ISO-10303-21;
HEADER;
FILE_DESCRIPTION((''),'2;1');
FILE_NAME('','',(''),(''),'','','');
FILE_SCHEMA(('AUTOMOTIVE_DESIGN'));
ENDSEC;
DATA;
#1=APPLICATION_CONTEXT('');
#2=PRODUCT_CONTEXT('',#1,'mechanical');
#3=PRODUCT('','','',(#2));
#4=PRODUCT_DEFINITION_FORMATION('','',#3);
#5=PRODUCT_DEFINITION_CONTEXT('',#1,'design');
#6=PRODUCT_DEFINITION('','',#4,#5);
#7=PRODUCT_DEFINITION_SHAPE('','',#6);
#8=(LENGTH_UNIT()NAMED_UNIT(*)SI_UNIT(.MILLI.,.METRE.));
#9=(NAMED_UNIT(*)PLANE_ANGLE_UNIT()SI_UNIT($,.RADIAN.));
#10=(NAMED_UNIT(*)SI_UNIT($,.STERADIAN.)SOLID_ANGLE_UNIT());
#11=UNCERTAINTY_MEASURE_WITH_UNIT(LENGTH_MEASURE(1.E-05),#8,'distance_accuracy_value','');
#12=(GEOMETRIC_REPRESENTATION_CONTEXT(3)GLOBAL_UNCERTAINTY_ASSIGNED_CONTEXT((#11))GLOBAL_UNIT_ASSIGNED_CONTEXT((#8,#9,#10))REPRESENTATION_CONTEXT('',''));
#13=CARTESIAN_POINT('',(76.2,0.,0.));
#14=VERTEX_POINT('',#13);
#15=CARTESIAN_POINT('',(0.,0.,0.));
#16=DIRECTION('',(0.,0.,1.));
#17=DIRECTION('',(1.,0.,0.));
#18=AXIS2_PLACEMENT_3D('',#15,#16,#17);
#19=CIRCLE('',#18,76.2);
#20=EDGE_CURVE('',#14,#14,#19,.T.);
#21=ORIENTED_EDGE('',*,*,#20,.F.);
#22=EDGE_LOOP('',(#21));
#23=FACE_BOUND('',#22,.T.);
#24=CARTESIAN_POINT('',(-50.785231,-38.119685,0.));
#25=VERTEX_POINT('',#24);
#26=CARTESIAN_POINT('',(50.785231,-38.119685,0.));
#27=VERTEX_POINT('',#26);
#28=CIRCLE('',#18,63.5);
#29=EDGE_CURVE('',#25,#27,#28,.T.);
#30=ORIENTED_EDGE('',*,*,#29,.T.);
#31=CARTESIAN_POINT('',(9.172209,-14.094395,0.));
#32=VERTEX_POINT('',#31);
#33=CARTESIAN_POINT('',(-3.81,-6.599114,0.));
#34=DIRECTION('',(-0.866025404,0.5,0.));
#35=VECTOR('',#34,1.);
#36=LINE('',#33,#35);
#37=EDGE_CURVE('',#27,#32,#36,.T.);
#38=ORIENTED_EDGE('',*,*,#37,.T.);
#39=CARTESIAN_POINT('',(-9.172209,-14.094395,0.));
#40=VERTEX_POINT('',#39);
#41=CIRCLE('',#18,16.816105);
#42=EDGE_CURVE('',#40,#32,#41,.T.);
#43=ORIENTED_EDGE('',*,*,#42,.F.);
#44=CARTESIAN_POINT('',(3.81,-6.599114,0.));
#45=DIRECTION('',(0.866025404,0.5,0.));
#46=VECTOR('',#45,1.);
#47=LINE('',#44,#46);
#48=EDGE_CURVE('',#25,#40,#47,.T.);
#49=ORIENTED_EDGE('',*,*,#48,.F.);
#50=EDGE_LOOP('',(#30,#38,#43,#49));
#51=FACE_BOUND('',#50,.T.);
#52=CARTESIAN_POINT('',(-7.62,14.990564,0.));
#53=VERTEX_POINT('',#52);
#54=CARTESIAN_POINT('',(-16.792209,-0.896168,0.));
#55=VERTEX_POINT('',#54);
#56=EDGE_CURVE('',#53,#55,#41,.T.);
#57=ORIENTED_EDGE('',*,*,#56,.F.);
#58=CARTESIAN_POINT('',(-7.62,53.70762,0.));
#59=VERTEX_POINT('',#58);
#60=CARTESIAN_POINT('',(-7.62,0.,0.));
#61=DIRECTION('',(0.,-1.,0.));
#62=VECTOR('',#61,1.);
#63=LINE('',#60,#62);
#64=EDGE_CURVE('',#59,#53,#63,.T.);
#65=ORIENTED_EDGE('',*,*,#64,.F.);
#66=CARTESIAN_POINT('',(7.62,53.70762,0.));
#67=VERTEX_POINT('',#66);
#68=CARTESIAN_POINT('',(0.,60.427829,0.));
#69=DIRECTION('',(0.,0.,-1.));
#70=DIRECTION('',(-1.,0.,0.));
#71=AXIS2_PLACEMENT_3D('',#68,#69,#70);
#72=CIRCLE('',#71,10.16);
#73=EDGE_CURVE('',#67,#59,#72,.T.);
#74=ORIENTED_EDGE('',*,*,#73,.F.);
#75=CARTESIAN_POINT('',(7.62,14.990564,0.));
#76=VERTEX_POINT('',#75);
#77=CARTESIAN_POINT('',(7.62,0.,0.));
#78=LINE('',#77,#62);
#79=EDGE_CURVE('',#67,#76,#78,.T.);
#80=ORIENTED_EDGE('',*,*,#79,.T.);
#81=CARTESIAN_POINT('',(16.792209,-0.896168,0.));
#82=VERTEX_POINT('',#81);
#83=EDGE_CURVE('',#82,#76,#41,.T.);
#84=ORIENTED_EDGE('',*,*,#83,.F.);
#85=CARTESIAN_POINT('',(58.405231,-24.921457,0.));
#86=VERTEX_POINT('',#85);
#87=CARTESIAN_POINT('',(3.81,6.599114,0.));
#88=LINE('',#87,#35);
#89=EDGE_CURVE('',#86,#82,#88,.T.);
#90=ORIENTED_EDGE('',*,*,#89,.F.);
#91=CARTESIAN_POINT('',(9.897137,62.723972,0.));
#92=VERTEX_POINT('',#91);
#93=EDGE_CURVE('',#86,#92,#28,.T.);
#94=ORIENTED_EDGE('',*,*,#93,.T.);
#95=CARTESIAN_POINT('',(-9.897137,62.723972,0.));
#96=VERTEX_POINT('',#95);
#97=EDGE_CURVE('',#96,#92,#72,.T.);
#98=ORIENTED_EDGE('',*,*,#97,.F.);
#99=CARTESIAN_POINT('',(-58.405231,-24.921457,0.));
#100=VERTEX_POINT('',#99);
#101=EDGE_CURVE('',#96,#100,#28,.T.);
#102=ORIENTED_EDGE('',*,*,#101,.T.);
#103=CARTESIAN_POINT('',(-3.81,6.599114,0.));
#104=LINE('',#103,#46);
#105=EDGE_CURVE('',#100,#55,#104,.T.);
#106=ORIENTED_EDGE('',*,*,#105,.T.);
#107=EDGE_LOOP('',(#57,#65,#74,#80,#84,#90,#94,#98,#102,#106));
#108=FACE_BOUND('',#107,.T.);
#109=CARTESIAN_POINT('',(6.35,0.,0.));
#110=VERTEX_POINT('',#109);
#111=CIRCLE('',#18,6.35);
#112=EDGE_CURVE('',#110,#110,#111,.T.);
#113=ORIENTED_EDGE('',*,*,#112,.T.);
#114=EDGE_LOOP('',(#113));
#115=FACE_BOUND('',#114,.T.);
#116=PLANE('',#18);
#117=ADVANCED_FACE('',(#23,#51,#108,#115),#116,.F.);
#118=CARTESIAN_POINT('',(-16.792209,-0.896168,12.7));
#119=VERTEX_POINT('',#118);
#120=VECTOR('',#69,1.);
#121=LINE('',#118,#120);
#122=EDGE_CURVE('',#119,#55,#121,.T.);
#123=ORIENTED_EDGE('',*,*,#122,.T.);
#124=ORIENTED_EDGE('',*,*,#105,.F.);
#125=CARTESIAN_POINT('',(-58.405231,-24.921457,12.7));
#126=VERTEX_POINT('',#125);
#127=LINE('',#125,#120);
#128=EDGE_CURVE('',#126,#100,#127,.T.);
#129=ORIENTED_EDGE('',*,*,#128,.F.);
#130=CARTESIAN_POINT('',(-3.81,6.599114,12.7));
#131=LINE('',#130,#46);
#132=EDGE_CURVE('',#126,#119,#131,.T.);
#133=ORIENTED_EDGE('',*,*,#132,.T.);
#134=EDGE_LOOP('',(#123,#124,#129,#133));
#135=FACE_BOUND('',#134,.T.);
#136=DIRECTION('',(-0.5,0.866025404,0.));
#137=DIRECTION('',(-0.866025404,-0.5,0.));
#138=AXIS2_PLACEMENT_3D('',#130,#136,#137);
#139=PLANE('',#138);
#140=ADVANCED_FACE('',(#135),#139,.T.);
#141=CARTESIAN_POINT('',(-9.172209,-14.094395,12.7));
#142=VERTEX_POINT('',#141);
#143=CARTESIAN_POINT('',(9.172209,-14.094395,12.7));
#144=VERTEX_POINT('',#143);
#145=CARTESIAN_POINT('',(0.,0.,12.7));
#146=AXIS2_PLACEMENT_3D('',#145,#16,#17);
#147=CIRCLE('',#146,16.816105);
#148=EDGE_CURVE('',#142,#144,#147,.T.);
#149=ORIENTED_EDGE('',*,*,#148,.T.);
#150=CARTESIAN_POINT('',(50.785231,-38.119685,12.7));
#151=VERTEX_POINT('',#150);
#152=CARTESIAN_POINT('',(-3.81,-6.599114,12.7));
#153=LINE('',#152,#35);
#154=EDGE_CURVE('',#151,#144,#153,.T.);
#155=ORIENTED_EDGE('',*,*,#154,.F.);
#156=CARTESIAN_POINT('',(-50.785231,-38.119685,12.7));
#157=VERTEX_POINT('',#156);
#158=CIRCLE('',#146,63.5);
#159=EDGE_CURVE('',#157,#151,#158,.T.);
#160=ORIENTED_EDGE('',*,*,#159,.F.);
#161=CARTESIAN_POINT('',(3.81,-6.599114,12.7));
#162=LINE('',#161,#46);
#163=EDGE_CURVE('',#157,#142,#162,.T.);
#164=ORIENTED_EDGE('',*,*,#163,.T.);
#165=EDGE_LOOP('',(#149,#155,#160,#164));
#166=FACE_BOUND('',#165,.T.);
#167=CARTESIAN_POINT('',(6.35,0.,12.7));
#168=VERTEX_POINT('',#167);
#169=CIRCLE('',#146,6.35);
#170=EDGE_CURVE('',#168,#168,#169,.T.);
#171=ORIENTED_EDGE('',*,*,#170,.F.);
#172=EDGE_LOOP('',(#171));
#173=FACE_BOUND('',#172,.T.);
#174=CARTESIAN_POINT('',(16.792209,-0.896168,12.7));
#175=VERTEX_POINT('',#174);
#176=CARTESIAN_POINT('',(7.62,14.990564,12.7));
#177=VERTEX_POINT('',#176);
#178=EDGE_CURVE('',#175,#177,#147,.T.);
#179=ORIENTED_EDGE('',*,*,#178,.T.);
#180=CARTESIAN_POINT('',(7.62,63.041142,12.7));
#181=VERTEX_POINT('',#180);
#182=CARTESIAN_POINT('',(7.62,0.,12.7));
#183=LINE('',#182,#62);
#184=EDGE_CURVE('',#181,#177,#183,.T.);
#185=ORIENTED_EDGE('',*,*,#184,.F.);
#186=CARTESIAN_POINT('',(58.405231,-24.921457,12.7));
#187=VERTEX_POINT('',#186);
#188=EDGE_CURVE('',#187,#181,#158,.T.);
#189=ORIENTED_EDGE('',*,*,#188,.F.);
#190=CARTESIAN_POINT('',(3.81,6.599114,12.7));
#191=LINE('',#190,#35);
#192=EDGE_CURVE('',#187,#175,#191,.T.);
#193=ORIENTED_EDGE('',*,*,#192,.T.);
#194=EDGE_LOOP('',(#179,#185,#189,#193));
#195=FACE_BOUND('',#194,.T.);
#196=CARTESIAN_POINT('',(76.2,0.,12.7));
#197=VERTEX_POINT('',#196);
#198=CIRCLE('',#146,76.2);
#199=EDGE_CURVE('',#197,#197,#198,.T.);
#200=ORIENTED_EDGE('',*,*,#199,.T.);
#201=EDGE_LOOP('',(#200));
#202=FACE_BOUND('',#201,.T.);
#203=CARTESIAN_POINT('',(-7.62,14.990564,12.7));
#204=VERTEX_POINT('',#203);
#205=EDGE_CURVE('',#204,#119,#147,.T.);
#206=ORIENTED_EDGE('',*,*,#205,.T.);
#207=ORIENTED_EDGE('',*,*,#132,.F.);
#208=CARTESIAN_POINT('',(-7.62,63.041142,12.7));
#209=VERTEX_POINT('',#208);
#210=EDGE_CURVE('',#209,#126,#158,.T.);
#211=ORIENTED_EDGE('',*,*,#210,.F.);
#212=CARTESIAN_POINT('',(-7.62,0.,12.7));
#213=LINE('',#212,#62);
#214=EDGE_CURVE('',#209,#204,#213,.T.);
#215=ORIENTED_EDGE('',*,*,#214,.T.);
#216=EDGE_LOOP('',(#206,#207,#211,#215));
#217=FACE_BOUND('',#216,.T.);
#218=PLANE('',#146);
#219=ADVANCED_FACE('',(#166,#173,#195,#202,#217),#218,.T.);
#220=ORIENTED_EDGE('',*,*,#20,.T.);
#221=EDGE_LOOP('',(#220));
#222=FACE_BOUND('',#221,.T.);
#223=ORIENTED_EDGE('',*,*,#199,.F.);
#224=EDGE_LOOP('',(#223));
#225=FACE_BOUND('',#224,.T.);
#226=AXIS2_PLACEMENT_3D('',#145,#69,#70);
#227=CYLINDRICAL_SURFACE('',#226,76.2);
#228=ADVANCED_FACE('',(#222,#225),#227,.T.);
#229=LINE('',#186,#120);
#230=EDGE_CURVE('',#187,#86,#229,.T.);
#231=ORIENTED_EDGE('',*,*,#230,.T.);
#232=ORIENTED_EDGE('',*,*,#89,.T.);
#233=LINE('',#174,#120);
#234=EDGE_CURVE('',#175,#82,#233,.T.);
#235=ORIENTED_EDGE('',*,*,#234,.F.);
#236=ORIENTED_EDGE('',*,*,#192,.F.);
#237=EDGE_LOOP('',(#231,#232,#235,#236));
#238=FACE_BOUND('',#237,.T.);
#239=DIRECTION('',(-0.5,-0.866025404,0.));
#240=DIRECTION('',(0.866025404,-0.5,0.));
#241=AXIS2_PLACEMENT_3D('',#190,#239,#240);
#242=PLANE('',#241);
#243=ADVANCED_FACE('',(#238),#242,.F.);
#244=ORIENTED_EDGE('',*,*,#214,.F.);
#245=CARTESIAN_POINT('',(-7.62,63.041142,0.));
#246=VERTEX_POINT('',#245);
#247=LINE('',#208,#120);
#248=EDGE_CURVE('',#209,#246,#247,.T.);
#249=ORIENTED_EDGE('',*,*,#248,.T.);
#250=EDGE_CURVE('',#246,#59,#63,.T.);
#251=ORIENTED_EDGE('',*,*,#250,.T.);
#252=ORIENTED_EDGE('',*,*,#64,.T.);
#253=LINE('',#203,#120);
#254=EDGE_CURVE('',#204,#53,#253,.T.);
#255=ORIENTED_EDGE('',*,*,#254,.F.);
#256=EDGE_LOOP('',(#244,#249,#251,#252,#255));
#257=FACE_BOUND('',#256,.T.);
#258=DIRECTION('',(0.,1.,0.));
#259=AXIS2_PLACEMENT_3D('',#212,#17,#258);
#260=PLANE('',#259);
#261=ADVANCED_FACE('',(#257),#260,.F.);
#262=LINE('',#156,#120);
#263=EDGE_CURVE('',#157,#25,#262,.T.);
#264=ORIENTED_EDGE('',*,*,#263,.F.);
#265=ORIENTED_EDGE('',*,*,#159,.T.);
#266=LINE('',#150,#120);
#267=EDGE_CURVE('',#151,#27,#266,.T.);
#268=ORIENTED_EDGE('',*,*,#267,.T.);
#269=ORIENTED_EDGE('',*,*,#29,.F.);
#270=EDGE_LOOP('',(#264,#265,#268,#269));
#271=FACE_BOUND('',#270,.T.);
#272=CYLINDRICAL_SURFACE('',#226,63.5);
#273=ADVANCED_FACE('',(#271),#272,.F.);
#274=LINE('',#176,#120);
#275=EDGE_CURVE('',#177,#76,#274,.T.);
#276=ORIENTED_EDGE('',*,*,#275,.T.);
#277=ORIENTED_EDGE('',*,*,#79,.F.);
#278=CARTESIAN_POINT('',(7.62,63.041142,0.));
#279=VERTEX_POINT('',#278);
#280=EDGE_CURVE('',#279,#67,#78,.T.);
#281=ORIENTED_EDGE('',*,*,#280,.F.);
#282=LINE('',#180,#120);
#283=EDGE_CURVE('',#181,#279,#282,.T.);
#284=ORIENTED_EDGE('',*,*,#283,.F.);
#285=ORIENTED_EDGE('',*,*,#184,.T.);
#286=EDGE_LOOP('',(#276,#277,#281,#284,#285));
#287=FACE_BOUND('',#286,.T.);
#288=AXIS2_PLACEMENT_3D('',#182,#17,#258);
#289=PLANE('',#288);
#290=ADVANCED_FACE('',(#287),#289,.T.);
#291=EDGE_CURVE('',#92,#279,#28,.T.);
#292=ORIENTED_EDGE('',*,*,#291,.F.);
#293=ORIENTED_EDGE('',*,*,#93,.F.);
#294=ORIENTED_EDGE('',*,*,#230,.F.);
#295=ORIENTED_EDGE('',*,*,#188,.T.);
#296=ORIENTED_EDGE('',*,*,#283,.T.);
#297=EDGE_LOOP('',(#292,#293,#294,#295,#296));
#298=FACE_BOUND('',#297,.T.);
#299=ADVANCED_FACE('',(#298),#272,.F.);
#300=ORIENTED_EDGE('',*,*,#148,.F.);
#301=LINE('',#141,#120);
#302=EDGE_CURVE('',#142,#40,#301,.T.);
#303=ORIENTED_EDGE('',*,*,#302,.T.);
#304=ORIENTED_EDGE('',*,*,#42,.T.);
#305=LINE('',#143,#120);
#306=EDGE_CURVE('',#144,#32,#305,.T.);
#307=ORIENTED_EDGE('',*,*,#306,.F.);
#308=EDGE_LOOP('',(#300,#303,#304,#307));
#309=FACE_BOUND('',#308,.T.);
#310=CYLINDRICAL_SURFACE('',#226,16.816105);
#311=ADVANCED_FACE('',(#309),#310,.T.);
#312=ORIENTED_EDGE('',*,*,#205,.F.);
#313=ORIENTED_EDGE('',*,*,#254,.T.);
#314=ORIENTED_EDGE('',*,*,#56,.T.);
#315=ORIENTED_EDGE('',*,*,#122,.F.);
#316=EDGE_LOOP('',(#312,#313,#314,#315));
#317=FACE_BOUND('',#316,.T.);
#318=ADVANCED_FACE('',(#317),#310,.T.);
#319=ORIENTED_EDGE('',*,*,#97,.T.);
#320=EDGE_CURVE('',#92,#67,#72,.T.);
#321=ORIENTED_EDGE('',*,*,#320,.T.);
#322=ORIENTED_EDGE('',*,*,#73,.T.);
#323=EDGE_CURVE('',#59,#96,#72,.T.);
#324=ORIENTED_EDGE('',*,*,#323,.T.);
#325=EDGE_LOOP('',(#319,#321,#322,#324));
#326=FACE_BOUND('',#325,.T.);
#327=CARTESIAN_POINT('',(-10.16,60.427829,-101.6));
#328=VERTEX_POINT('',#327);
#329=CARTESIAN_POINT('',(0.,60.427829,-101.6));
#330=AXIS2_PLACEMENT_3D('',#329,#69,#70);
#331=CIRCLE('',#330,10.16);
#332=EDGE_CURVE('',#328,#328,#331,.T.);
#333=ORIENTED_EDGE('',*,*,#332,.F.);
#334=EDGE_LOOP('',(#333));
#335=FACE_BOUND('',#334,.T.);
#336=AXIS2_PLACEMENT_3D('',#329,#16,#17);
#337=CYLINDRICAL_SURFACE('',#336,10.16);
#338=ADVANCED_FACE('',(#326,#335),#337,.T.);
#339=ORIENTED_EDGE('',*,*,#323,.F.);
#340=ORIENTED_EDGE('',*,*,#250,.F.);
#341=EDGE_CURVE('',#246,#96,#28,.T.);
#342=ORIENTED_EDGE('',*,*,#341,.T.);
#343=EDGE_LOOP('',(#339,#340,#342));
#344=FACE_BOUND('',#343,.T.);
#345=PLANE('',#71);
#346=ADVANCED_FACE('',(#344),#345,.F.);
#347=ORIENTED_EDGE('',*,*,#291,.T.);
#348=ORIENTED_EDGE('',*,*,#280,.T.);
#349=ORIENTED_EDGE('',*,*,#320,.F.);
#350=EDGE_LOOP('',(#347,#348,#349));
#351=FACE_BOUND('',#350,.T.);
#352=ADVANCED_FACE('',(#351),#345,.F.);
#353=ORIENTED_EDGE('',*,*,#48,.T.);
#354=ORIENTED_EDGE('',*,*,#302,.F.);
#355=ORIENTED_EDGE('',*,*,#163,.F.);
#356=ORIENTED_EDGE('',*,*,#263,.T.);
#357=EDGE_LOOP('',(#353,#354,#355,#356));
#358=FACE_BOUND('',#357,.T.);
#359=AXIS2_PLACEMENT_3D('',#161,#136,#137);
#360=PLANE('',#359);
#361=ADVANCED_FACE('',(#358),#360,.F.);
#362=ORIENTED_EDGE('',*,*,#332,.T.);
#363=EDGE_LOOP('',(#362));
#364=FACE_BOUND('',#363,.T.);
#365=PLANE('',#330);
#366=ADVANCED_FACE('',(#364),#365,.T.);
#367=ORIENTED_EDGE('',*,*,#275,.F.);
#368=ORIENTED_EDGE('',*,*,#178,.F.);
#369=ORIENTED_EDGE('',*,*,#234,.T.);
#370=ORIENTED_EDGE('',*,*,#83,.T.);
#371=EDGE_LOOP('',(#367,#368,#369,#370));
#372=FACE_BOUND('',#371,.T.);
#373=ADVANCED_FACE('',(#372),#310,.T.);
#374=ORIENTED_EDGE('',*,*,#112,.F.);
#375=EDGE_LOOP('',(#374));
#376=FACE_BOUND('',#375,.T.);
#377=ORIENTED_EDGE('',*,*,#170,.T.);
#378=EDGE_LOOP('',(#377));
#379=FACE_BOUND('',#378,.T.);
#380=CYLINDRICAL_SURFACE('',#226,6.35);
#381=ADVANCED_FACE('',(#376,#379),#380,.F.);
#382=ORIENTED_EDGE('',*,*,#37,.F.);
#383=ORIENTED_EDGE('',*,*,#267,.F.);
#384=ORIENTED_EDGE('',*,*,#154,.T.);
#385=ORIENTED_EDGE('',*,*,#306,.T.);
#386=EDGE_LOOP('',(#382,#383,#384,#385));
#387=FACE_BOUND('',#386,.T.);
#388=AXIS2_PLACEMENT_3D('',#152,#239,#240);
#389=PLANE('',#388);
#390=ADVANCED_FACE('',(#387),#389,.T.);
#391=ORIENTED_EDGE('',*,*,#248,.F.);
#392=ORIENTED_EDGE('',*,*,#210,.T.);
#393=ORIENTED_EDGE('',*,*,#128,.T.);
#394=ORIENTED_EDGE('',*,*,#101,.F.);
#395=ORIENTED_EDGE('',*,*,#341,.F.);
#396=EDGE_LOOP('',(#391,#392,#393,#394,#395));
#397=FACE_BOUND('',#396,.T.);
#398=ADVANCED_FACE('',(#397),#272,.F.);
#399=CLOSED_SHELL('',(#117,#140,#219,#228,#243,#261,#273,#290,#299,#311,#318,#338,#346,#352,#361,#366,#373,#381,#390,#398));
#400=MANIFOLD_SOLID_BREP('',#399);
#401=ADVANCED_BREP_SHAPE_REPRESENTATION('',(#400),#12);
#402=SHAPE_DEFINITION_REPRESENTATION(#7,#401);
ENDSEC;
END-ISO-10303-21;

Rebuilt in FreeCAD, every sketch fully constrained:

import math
import FreeCAD as App
import Part
import Sketcher
from FreeCAD import Vector
Q = App.Units.Quantity

doc = App.newDocument("Part")
params = doc.addObject("Spreadsheet::Sheet", "Params")
for row, (alias, value) in enumerate([
    ("sketch1_diameter", "6 in"),
    ("sketch1_diameter2", "0.5 in"),
    ("sketch1_radius", "2.5 in"),
    ("pad1_length", "0.5 in"),
    ("sketch2_diameter", "0.8 in"),
    ("pad2_length", "4 in"),
], start=1):
    params.set(f"A{row}", alias)
    params.set(f"B{row}", "=" + value)
    params.setAlias(f"B{row}", alias)

body = doc.addObject("PartDesign::Body", "Body")

sketch1 = body.newObject("Sketcher::SketchObject", "Sketch")
sketch1.AttachmentSupport = (doc.getObject("XY_Plane"), [""])
sketch1.MapMode = "FlatFace"
sketch1.addGeometry(Part.Circle(Vector(0, 0, 0), Vector(0, 0, 1), 76), False)
sketch1.addGeometry(Part.ArcOfCircle(Part.Circle(Vector(0, 0, 0), Vector(0, 0, 1), 64), math.radians(-23), math.radians(83)), False)
sketch1.addGeometry(Part.LineSegment(Vector(58, -25, 0), Vector(17, -1, 0)), False)
sketch1.addGeometry(Part.ArcOfCircle(Part.Circle(Vector(0, 0, 0), Vector(0, 0, 1), 17), math.radians(-3), math.radians(63)), False)
sketch1.addGeometry(Part.LineSegment(Vector(8, 15, 0), Vector(8, 63, 0)), False)
sketch1.addGeometry(Part.ArcOfCircle(Part.Circle(Vector(0, 0, 0), Vector(0, 0, 1), 64), math.radians(97), math.radians(203)), False)
sketch1.addGeometry(Part.LineSegment(Vector(-8, 63, 0), Vector(-8, 15, 0)), False)
sketch1.addGeometry(Part.ArcOfCircle(Part.Circle(Vector(0, 0, 0), Vector(0, 0, 1), 17), math.radians(117), math.radians(183)), False)
sketch1.addGeometry(Part.LineSegment(Vector(-17, -1, 0), Vector(-58, -25, 0)), False)
sketch1.addGeometry(Part.ArcOfCircle(Part.Circle(Vector(0, 0, 0), Vector(0, 0, 1), 64), math.radians(-143), math.radians(-37)), False)
sketch1.addGeometry(Part.LineSegment(Vector(-51, -38, 0), Vector(-9, -14, 0)), False)
sketch1.addGeometry(Part.ArcOfCircle(Part.Circle(Vector(0, 0, 0), Vector(0, 0, 1), 17), math.radians(-123), math.radians(-57)), False)
sketch1.addGeometry(Part.LineSegment(Vector(9, -14, 0), Vector(51, -38, 0)), False)
sketch1.addGeometry(Part.Circle(Vector(0, 0, 0), Vector(0, 0, 1), 6), False)
sketch1.addConstraint(Sketcher.Constraint("Coincident", 1, 1, 2, 1))
sketch1.addConstraint(Sketcher.Constraint("Coincident", 2, 2, 3, 1))
sketch1.addConstraint(Sketcher.Constraint("Coincident", 3, 2, 4, 1))
sketch1.addConstraint(Sketcher.Constraint("Coincident", 4, 2, 1, 2))
sketch1.addConstraint(Sketcher.Constraint("Coincident", 5, 1, 6, 1))
sketch1.addConstraint(Sketcher.Constraint("Coincident", 6, 2, 7, 1))
sketch1.addConstraint(Sketcher.Constraint("Coincident", 7, 2, 8, 1))
sketch1.addConstraint(Sketcher.Constraint("Coincident", 8, 2, 5, 2))
sketch1.addConstraint(Sketcher.Constraint("Coincident", 9, 1, 10, 1))
sketch1.addConstraint(Sketcher.Constraint("Coincident", 10, 2, 11, 1))
sketch1.addConstraint(Sketcher.Constraint("Coincident", 11, 2, 12, 1))
sketch1.addConstraint(Sketcher.Constraint("Coincident", 12, 2, 9, 2))
sketch1.addConstraint(Sketcher.Constraint("Vertical", 4))
sketch1.addConstraint(Sketcher.Constraint("Vertical", 6))
sketch1.addConstraint(Sketcher.Constraint("Coincident", 0, 3, -1, 1))
sketch1.addConstraint(Sketcher.Constraint("Coincident", 1, 3, -1, 1))
sketch1.addConstraint(Sketcher.Constraint("Coincident", 3, 3, -1, 1))
sketch1.addConstraint(Sketcher.Constraint("Coincident", 5, 3, -1, 1))
sketch1.addConstraint(Sketcher.Constraint("Coincident", 7, 3, -1, 1))
sketch1.addConstraint(Sketcher.Constraint("Coincident", 9, 3, -1, 1))
sketch1.addConstraint(Sketcher.Constraint("Coincident", 11, 3, -1, 1))
sketch1.addConstraint(Sketcher.Constraint("Coincident", 13, 3, -1, 1))
sketch1.addConstraint(Sketcher.Constraint("Equal", 1, 5))
sketch1.addConstraint(Sketcher.Constraint("Equal", 3, 7))
sketch1.addConstraint(Sketcher.Constraint("Equal", 5, 9))
sketch1.addConstraint(Sketcher.Constraint("Equal", 7, 11))
sketch1.addConstraint(Sketcher.Constraint("Parallel", 8, 10))
sketch1.addConstraint(Sketcher.Constraint("Parallel", 2, 12))
sketch1.addConstraint(Sketcher.Constraint("Horizontal", 4, 2, 5, 1))
sketch1.addConstraint(Sketcher.Constraint("Horizontal", 2, 2, 7, 2))
sketch1.addConstraint(Sketcher.Constraint("Horizontal", 1, 1, 8, 2))
sketch1.addConstraint(Sketcher.Constraint("Horizontal", 10, 2, 11, 2))
sketch1.addConstraint(Sketcher.Constraint("Equal", 8, 10))
sketch1.addConstraint(Sketcher.Constraint("Diameter", 0, Q("6 in")))
sketch1.addConstraint(Sketcher.Constraint("Diameter", 13, Q("0.5 in")))
sketch1.addConstraint(Sketcher.Constraint("Radius", 1, Q("2.5 in")))
sketch1.addConstraint(Sketcher.Constraint("Angle", 2, Q("150 deg")))
sketch1.addConstraint(Sketcher.Constraint("DistanceX", -1, 1, 3, 2, Q("0.3 in")))
sketch1.addConstraint(Sketcher.Constraint("DistanceX", 8, 2, 9, 1, Q("0.3 in")))
sketch1.addConstraint(Sketcher.Constraint("Radius", 3, Q("16.816105 mm")))
sketch1.setExpression("Constraints[33]", "Params.sketch1_diameter")
sketch1.setExpression("Constraints[34]", "Params.sketch1_diameter2")
sketch1.setExpression("Constraints[35]", "Params.sketch1_radius")
pad1 = body.newObject("PartDesign::Pad", "Pad")
pad1.Profile = sketch1
pad1.setExpression("Length", "Params.pad1_length")

sketch2 = body.newObject("Sketcher::SketchObject", "Sketch001")
sketch2.AttachmentSupport = (doc.getObject("XY_Plane"), [""])
sketch2.MapMode = "FlatFace"
sketch2.addGeometry(Part.Circle(Vector(0, 60, 0), Vector(0, 0, 1), 10), False)
sketch2.addConstraint(Sketcher.Constraint("PointOnObject", 0, 3, -2))
sketch2.addConstraint(Sketcher.Constraint("Diameter", 0, Q("0.8 in")))
sketch2.addConstraint(Sketcher.Constraint("DistanceY", -1, 1, 0, 3, Q("60.427829 mm")))
sketch2.setExpression("Constraints[1]", "Params.sketch2_diameter")
pad2 = body.newObject("PartDesign::Pad", "Pad001")
pad2.Profile = sketch2
pad2.setExpression("Length", "Params.pad2_length")
pad2.Reversed = True

doc.recompute()
